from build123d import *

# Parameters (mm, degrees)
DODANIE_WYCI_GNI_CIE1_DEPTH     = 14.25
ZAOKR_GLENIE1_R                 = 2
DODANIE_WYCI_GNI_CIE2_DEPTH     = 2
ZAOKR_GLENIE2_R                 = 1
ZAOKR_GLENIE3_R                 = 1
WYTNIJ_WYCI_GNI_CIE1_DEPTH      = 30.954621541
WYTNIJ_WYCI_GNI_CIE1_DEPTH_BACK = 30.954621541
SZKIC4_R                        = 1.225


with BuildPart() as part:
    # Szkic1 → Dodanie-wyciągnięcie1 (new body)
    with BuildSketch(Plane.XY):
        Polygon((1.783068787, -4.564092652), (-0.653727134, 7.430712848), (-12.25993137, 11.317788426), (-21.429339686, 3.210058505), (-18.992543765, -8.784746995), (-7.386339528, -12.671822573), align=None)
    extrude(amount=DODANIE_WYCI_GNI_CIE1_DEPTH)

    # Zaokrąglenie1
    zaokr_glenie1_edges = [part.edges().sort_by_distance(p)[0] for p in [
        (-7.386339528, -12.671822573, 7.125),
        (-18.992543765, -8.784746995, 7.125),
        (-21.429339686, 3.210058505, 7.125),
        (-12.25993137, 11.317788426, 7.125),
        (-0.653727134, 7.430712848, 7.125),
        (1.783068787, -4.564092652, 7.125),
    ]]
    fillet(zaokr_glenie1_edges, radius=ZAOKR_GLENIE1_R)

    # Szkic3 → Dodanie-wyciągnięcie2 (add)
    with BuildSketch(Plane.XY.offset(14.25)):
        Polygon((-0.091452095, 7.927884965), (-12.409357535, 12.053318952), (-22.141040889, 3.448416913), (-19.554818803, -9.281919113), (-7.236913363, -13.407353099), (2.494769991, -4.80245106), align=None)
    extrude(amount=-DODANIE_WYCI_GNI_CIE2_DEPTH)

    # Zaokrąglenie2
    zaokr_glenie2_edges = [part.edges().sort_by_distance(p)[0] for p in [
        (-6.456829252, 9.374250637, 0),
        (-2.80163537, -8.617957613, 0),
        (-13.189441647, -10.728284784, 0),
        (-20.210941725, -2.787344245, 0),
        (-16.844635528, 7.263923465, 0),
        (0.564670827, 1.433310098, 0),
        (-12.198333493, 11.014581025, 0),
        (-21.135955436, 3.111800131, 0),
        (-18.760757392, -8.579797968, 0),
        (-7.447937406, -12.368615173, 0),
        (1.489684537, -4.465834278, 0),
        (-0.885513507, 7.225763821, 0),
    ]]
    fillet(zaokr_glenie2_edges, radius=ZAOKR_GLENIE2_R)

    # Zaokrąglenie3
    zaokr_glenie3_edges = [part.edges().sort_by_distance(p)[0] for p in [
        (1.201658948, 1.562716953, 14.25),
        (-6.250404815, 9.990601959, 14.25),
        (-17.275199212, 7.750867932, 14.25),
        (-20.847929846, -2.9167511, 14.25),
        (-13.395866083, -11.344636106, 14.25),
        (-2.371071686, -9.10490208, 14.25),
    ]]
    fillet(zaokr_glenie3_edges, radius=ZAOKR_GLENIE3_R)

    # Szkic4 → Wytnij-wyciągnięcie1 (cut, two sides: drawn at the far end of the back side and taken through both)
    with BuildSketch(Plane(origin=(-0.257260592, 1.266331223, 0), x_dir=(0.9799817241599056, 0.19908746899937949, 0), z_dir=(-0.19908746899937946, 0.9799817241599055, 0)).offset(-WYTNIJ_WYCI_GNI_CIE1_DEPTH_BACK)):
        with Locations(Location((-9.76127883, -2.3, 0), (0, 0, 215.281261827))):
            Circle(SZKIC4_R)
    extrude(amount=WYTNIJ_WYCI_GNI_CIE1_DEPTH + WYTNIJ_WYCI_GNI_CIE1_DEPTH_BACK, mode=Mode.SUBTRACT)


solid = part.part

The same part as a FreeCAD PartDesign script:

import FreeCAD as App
import Part
import Sketcher
Q = App.Units.Quantity


def edges_at(feature, points):
    """Names of the edges that pass closest to the given points."""
    edges = feature.Shape.Edges
    near = lambda p: min(range(len(edges)), key=lambda i: edges[i].distToShape(Part.Vertex(*p))[0])
    return sorted({f"Edge{near(p) + 1}" for p in points})

doc = App.newDocument("Part")
body = doc.addObject("PartDesign::Body", "Body")

# Sketch on XY plane
sketch1 = doc.addObject("Sketcher::SketchObject", "Sketch")
body.addObject(sketch1)
sketch1.AttachmentSupport = (doc.XY_Plane, [""])
sketch1.MapMode = "FlatFace"
sketch1.addGeometry(Part.LineSegment(App.Vector(2, -5, 0), App.Vector(-1, 7, 0)), False)
sketch1.addGeometry(Part.LineSegment(App.Vector(-1, 7, 0), App.Vector(-12, 11, 0)), False)
sketch1.addGeometry(Part.LineSegment(App.Vector(-12, 11, 0), App.Vector(-21, 3, 0)), False)
sketch1.addGeometry(Part.LineSegment(App.Vector(-21, 3, 0), App.Vector(-19, -9, 0)), False)
sketch1.addGeometry(Part.LineSegment(App.Vector(-19, -9, 0), App.Vector(-7, -13, 0)), False)
sketch1.addGeometry(Part.LineSegment(App.Vector(-7, -13, 0), App.Vector(2, -5, 0)), False)
sketch1.addConstraint(Sketcher.Constraint("Coincident", 0, 2, 1, 1))
sketch1.addConstraint(Sketcher.Constraint("Coincident", 1, 2, 2, 1))
sketch1.addConstraint(Sketcher.Constraint("Coincident", 2, 2, 3, 1))
sketch1.addConstraint(Sketcher.Constraint("Coincident", 3, 2, 4, 1))
sketch1.addConstraint(Sketcher.Constraint("Coincident", 4, 2, 5, 1))
sketch1.addConstraint(Sketcher.Constraint("Coincident", 5, 2, 0, 1))
sketch1.addConstraint(Sketcher.Constraint("Parallel", 0, 3))
sketch1.addConstraint(Sketcher.Constraint("Parallel", 1, 4))
sketch1.addConstraint(Sketcher.Constraint("Parallel", 2, 5))
sketch1.addConstraint(Sketcher.Constraint("Equal", 0, 1))
sketch1.addConstraint(Sketcher.Constraint("Equal", 1, 2))
sketch1.addConstraint(Sketcher.Constraint("Equal", 2, 3))
sketch1.addConstraint(Sketcher.Constraint("DistanceX", 2, 2, 4, 2, Q("14.043 mm")))
sketch1.addConstraint(Sketcher.Constraint("DistanceX", 1, 2, -1, 1, Q("12.259931 mm")))
sketch1.addConstraint(Sketcher.Constraint("DistanceY", -1, 1, 1, 2, Q("11.317788 mm")))
sketch1.addConstraint(Sketcher.Constraint("DistanceX", 2, 2, -1, 1, Q("21.42934 mm")))
sketch1.addConstraint(Sketcher.Constraint("DistanceY", -1, 1, 2, 2, Q("3.210059 mm")))
sketch1.addConstraint(Sketcher.Constraint("DistanceY", 3, 2, 0, 2, Q("16.21546 mm")))
pad1 = doc.addObject("PartDesign::Pad", "Pad")
body.addObject(pad1)
pad1.Profile = sketch1
pad1.Length = 14.25
doc.recompute()

fillet = doc.addObject("PartDesign::Fillet", "Fillet")
body.addObject(fillet)
fillet.Base = (pad1, edges_at(pad1, [
    (-7.386, -12.672, 7.125),
    (-18.993, -8.785, 7.125),
    (-21.429, 3.21, 7.125),
    (-12.26, 11.318, 7.125),
    (-0.654, 7.431, 7.125),
    (1.783, -4.564, 7.125),
]))
fillet.Radius = 2

# Sketch on XY plane
sketch2 = doc.addObject("Sketcher::SketchObject", "Sketch001")
body.addObject(sketch2)
sketch2.AttachmentSupport = (doc.XY_Plane, [""])
sketch2.MapMode = "FlatFace"
sketch2.AttachmentOffset = App.Placement(App.Vector(0, 0, 14.25), App.Rotation())
sketch2.addGeometry(Part.LineSegment(App.Vector(0, 8, 0), App.Vector(-12, 12, 0)), False)
sketch2.addGeometry(Part.LineSegment(App.Vector(-12, 12, 0), App.Vector(-22, 3, 0)), False)
sketch2.addGeometry(Part.LineSegment(App.Vector(-22, 3, 0), App.Vector(-20, -9, 0)), False)
sketch2.addGeometry(Part.LineSegment(App.Vector(-20, -9, 0), App.Vector(-7, -13, 0)), False)
sketch2.addGeometry(Part.LineSegment(App.Vector(-7, -13, 0), App.Vector(2, -5, 0)), False)
sketch2.addGeometry(Part.LineSegment(App.Vector(2, -5, 0), App.Vector(0, 8, 0)), False)
sketch2.addConstraint(Sketcher.Constraint("Coincident", 0, 2, 1, 1))
sketch2.addConstraint(Sketcher.Constraint("Coincident", 1, 2, 2, 1))
sketch2.addConstraint(Sketcher.Constraint("Coincident", 2, 2, 3, 1))
sketch2.addConstraint(Sketcher.Constraint("Coincident", 3, 2, 4, 1))
sketch2.addConstraint(Sketcher.Constraint("Coincident", 4, 2, 5, 1))
sketch2.addConstraint(Sketcher.Constraint("Coincident", 5, 2, 0, 1))
sketch2.addConstraint(Sketcher.Constraint("Parallel", 0, 3))
sketch2.addConstraint(Sketcher.Constraint("Parallel", 1, 4))
sketch2.addConstraint(Sketcher.Constraint("Parallel", 2, 5))
sketch2.addConstraint(Sketcher.Constraint("Equal", 0, 1))
sketch2.addConstraint(Sketcher.Constraint("Equal", 1, 2))
sketch2.addConstraint(Sketcher.Constraint("Equal", 2, 3))
sketch2.addConstraint(Sketcher.Constraint("Distance", 0, Q("12.990381 mm")))
sketch2.addConstraint(Sketcher.Constraint("DistanceY", -1, 1, 0, 2, Q("12.053319 mm")))
sketch2.addConstraint(Sketcher.Constraint("DistanceX", 1, 2, -1, 1, Q("22.141041 mm")))
sketch2.addConstraint(Sketcher.Constraint("DistanceX", 2, 2, -1, 1, Q("19.554819 mm")))
sketch2.addConstraint(Sketcher.Constraint("DistanceY", 2, 2, -1, 1, Q("9.281919 mm")))
sketch2.addConstraint(Sketcher.Constraint("DistanceX", -1, 1, 4, 2, Q("2.49477 mm")))
pad2 = doc.addObject("PartDesign::Pad", "Pad001")
body.addObject(pad2)
pad2.Profile = sketch2
pad2.Length = 2
pad2.Reversed = True
doc.recompute()

fillet2 = doc.addObject("PartDesign::Fillet", "Fillet001")
body.addObject(fillet2)
fillet2.Base = (pad2, edges_at(pad2, [
    (-6.457, 9.374, 0),
    (-2.802, -8.618, 0),
    (-13.189, -10.728, 0),
    (-20.211, -2.787, 0),
    (-16.845, 7.264, 0),
    (0.565, 1.433, 0),
    (-12.198, 11.015, 0),
    (-21.136, 3.112, 0),
    (-18.761, -8.58, 0),
    (-7.448, -12.369, 0),
    (1.49, -4.466, 0),
    (-0.886, 7.226, 0),
]))
fillet2.Radius = 1
doc.recompute()

fillet3 = doc.addObject("PartDesign::Fillet", "Fillet002")
body.addObject(fillet3)
fillet3.Base = (fillet2, edges_at(fillet2, [
    (1.202, 1.563, 14.25),
    (-6.25, 9.991, 14.25),
    (-17.275, 7.751, 14.25),
    (-20.848, -2.917, 14.25),
    (-13.396, -11.345, 14.25),
    (-2.371, -9.105, 14.25),
]))
fillet3.Radius = 1

# Sketch on an angled plane
sketch3 = doc.addObject("Sketcher::SketchObject", "Sketch002")
body.addObject(sketch3)
sketch3.Placement = App.Placement(App.Vector(-0.257261, 1.266331, 0), App.Rotation(App.Vector(0.979981724, 0.199087469, 0), App.Vector(0, 0, -1), App.Vector(-0.199087469, 0.979981724, 0), "ZXY"))
sketch3.addGeometry(Part.Circle(App.Vector(-9.8, -2.3, 0), App.Vector(0, 0, 1), 1.2), False)
sketch3.addConstraint(Sketcher.Constraint("Diameter", 0, Q("2.45 mm")))
sketch3.addConstraint(Sketcher.Constraint("DistanceY", 0, 3, -1, 1, Q("2.3 mm")))
sketch3.addConstraint(Sketcher.Constraint("DistanceX", 0, 3, -1, 1, Q("9.761279 mm")))
pocket1 = doc.addObject("PartDesign::Pocket", "Pocket")
body.addObject(pocket1)
pocket1.Profile = sketch3
pocket1.Type = "ThroughAll"
pocket1.Midplane = True

doc.recompute()
